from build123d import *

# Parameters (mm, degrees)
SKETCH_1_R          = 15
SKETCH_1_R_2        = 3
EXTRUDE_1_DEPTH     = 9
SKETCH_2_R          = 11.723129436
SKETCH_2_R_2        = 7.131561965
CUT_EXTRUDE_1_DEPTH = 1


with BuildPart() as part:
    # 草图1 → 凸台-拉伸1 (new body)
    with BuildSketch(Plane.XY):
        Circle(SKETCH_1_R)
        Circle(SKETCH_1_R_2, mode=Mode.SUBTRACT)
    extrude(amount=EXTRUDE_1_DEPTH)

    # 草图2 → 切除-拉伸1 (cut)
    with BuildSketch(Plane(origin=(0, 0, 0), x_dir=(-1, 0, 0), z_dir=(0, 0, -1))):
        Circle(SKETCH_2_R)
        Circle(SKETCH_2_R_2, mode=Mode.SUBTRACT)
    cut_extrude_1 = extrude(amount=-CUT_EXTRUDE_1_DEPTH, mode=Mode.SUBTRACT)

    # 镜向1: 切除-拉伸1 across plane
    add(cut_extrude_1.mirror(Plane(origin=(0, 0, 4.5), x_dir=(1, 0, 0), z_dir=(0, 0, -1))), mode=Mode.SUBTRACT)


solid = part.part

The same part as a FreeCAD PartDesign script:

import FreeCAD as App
import Part
import Sketcher

V = App.Vector

doc = App.newDocument("Part")
params = doc.addObject("Spreadsheet::Sheet", "Params")
for row, (alias, value) in enumerate([
    ("sketch1_diameter", "30 mm"),
    ("sketch1_diameter2", "6 mm"),
    ("pad1_length", "9 mm"),
    ("pocket1_length", "1 mm"),
], start=1):
    params.set(f"A{row}", alias)
    params.set(f"B{row}", "=" + value)
    params.setAlias(f"B{row}", alias)

body = doc.addObject("PartDesign::Body", "Body")

# Sketch on XY plane
sketch1 = body.newObject("Sketcher::SketchObject", "Sketch")
sketch1.AttachmentSupport = (doc.getObject("XY_Plane"), [""])
sketch1.MapMode = "FlatFace"
sketch1.addGeometry([
    Part.Circle(V(0, 0, 0), V(0, 0, 1), 15),
    Part.Circle(V(0, 0, 0), V(0, 0, 1), 3),
], False)
sketch1.addConstraint([
    Sketcher.Constraint("Coincident", 0, 3, -1, 1),
    Sketcher.Constraint("Coincident", 1, 3, -1, 1),
    Sketcher.Constraint("Diameter", 0, 30.0),
    Sketcher.Constraint("Diameter", 1, 6.0),
])
sketch1.setExpression("Constraints[2]", "Params.sketch1_diameter")
sketch1.setExpression("Constraints[3]", "Params.sketch1_diameter2")
pad1 = body.newObject("PartDesign::Pad", "Pad")
pad1.Profile = sketch1
pad1.setExpression("Length", "Params.pad1_length")

# Sketch on XY plane
sketch2 = body.newObject("Sketcher::SketchObject", "Sketch001")
sketch2.AttachmentSupport = (doc.getObject("XY_Plane"), [""])
sketch2.MapMode = "FlatFace"
sketch2.addGeometry([
    Part.Circle(V(0, 0, 0), V(0, 0, 1), 12),
    Part.Circle(V(0, 0, 0), V(0, 0, 1), 7),
], False)
sketch2.addConstraint([
    Sketcher.Constraint("Coincident", 0, 3, -1, 1),
    Sketcher.Constraint("Coincident", 1, 3, -1, 1),
    Sketcher.Constraint("Diameter", 0, 23.446259),
    Sketcher.Constraint("Diameter", 1, 14.263124),
])
pocket1 = body.newObject("PartDesign::Pocket", "Pocket")
pocket1.Profile = sketch2
pocket1.setExpression("Length", "Params.pocket1_length")
pocket1.Reversed = True
doc.recompute()

datumplane = body.newObject("PartDesign::Plane", "DatumPlane")
datumplane.AttachmentSupport = (doc.getObject("XY_Plane"), [""])
datumplane.MapMode = "FlatFace"
datumplane.AttachmentOffset = App.Placement(V(0, 0, 4.5), App.Rotation())
mirrored = body.newObject("PartDesign::Mirrored", "Mirrored")
mirrored.Originals = [pocket1]
mirrored.MirrorPlane = (datumplane, [""])
body.Tip = mirrored

doc.recompute()
